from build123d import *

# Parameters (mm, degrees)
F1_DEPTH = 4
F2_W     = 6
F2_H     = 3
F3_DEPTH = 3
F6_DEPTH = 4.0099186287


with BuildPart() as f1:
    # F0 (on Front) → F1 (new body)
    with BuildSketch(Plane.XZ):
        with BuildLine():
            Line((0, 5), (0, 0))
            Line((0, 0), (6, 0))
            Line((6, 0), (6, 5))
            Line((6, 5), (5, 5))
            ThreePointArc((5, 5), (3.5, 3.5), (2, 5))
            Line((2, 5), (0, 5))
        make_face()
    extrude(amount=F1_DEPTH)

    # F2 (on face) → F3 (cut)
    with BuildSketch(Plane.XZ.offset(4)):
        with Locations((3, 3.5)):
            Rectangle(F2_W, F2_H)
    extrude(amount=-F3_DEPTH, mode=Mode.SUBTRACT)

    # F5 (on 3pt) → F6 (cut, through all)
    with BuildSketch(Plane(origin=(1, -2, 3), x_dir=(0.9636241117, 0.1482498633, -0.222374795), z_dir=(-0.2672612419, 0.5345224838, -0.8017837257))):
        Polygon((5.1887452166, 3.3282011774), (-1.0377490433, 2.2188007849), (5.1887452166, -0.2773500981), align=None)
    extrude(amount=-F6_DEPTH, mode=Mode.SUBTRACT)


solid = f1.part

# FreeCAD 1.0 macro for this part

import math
import FreeCAD as App
import Part
import Sketcher
Q = App.Units.Quantity


def add_polygon(sketch, points):
    """Adds a closed chain of lines whose ends are joined by coincident constraints."""
    first, n = sketch.GeometryCount, len(points)
    for a, b in zip(points, points[1:] + points[:1]):
        sketch.addGeometry(Part.LineSegment(App.Vector(*a, 0), App.Vector(*b, 0)), False)
    for i in range(n):
        sketch.addConstraint(Sketcher.Constraint("Coincident", first + i, 2, first + (i + 1) % n, 1))

doc = App.newDocument("Part")
body = doc.addObject("PartDesign::Body", "Body")

sketch1 = body.newObject("Sketcher::SketchObject", "Sketch")
sketch1.AttachmentSupport = (doc.getObject("XZ_Plane"), [""])
sketch1.MapMode = "FlatFace"
sketch1.addGeometry([
    Part.LineSegment(App.Vector(0, 5, 0), App.Vector(0, 0, 0)),
    Part.LineSegment(App.Vector(0, 0, 0), App.Vector(6, 0, 0)),
    Part.LineSegment(App.Vector(6, 0, 0), App.Vector(6, 5, 0)),
    Part.LineSegment(App.Vector(6, 5, 0), App.Vector(5, 5, 0)),
    Part.ArcOfCircle(Part.Circle(App.Vector(3.5, 5, 0), App.Vector(0, 0, 1), 1.5), math.radians(180), math.radians(360)),
    Part.LineSegment(App.Vector(2, 5, 0), App.Vector(0, 5, 0)),
], False)
sketch1.addConstraint([
    Sketcher.Constraint("Coincident", 0, 2, 1, 1),
    Sketcher.Constraint("Coincident", 1, 2, 2, 1),
    Sketcher.Constraint("Coincident", 2, 2, 3, 1),
    Sketcher.Constraint("Coincident", 3, 2, 4, 2),
    Sketcher.Constraint("Coincident", 4, 1, 5, 1),
    Sketcher.Constraint("Coincident", 5, 2, 0, 1),
    Sketcher.Constraint("Vertical", 0),
    Sketcher.Constraint("Horizontal", 1),
    Sketcher.Constraint("Vertical", 2),
    Sketcher.Constraint("Horizontal", 3),
    Sketcher.Constraint("Horizontal", 5),
    Sketcher.Constraint("Coincident", 0, 2, -1, 1),
    Sketcher.Constraint("Horizontal", 4, 3, 2, 2),
    Sketcher.Constraint("Horizontal", 3, 2, 4, 1),
    Sketcher.Constraint("Radius", 4, Q("1.5 mm")),
    Sketcher.Constraint("DistanceX", 1, 1, 1, 2, Q("6 mm")),
    Sketcher.Constraint("DistanceX", 3, 2, 3, 1, Q("1 mm")),
    Sketcher.Constraint("DistanceY", 0, 2, 0, 1, Q("5 mm")),
])
pad1 = body.newObject("PartDesign::Pad", "Pad")
pad1.Profile = sketch1
pad1.Length = 4

sketch2 = body.newObject("Sketcher::SketchObject", "Sketch001")
sketch2.AttachmentSupport = (doc.getObject("XZ_Plane"), [""])
sketch2.MapMode = "FlatFace"
sketch2.AttachmentOffset = App.Placement(App.Vector(0, 0, 4), App.Rotation())
add_polygon(sketch2, [(0, 5), (0, 2), (6, 2), (6, 5)])
sketch2.addConstraint([
    Sketcher.Constraint("Vertical", 0),
    Sketcher.Constraint("Horizontal", 1),
    Sketcher.Constraint("Vertical", 2),
    Sketcher.Constraint("Horizontal", 3),
    Sketcher.Constraint("PointOnObject", 0, 2, -2),
    Sketcher.Constraint("DistanceX", 1, 1, 1, 2, Q("6 mm")),
    Sketcher.Constraint("DistanceY", 0, 2, 0, 1, Q("3 mm")),
    Sketcher.Constraint("DistanceY", -1, 1, 0, 2, Q("2 mm")),
])
pocket1 = body.newObject("PartDesign::Pocket", "Pocket")
pocket1.Profile = sketch2
pocket1.Length = 3

sketch3 = body.newObject("Sketcher::SketchObject", "Sketch002")
sketch3.Placement = App.Placement(App.Vector(1, -2, 3), App.Rotation(App.Vector(0.963624112, 0.148249863, -0.222374795), App.Vector(0, -0.832050295, -0.554700197), App.Vector(-0.267261242, 0.534522484, -0.801783726), "ZXY"))
add_polygon(sketch3, [(5.188745, 3.328201), (-1.037749, 2.218801), (5.188745, -0.27735)])
sketch3.addConstraint([
    Sketcher.Constraint("Vertical", 2),
    Sketcher.Constraint("DistanceY", 2, 1, 2, 2, Q("3.605551 mm")),
    Sketcher.Constraint("DistanceY", -1, 1, 0, 2, Q("2.218801 mm")),
    Sketcher.Constraint("DistanceY", -1, 1, 2, 2, Q("3.328201 mm")),
    Sketcher.Constraint("DistanceX", 0, 2, -1, 1, Q("1.037749 mm")),
    Sketcher.Constraint("Distance", 0, Q("6.324555 mm")),
])
pocket2 = body.newObject("PartDesign::Pocket", "Pocket001")
pocket2.Profile = sketch3
pocket2.Type = "ThroughAll"

doc.recompute()
